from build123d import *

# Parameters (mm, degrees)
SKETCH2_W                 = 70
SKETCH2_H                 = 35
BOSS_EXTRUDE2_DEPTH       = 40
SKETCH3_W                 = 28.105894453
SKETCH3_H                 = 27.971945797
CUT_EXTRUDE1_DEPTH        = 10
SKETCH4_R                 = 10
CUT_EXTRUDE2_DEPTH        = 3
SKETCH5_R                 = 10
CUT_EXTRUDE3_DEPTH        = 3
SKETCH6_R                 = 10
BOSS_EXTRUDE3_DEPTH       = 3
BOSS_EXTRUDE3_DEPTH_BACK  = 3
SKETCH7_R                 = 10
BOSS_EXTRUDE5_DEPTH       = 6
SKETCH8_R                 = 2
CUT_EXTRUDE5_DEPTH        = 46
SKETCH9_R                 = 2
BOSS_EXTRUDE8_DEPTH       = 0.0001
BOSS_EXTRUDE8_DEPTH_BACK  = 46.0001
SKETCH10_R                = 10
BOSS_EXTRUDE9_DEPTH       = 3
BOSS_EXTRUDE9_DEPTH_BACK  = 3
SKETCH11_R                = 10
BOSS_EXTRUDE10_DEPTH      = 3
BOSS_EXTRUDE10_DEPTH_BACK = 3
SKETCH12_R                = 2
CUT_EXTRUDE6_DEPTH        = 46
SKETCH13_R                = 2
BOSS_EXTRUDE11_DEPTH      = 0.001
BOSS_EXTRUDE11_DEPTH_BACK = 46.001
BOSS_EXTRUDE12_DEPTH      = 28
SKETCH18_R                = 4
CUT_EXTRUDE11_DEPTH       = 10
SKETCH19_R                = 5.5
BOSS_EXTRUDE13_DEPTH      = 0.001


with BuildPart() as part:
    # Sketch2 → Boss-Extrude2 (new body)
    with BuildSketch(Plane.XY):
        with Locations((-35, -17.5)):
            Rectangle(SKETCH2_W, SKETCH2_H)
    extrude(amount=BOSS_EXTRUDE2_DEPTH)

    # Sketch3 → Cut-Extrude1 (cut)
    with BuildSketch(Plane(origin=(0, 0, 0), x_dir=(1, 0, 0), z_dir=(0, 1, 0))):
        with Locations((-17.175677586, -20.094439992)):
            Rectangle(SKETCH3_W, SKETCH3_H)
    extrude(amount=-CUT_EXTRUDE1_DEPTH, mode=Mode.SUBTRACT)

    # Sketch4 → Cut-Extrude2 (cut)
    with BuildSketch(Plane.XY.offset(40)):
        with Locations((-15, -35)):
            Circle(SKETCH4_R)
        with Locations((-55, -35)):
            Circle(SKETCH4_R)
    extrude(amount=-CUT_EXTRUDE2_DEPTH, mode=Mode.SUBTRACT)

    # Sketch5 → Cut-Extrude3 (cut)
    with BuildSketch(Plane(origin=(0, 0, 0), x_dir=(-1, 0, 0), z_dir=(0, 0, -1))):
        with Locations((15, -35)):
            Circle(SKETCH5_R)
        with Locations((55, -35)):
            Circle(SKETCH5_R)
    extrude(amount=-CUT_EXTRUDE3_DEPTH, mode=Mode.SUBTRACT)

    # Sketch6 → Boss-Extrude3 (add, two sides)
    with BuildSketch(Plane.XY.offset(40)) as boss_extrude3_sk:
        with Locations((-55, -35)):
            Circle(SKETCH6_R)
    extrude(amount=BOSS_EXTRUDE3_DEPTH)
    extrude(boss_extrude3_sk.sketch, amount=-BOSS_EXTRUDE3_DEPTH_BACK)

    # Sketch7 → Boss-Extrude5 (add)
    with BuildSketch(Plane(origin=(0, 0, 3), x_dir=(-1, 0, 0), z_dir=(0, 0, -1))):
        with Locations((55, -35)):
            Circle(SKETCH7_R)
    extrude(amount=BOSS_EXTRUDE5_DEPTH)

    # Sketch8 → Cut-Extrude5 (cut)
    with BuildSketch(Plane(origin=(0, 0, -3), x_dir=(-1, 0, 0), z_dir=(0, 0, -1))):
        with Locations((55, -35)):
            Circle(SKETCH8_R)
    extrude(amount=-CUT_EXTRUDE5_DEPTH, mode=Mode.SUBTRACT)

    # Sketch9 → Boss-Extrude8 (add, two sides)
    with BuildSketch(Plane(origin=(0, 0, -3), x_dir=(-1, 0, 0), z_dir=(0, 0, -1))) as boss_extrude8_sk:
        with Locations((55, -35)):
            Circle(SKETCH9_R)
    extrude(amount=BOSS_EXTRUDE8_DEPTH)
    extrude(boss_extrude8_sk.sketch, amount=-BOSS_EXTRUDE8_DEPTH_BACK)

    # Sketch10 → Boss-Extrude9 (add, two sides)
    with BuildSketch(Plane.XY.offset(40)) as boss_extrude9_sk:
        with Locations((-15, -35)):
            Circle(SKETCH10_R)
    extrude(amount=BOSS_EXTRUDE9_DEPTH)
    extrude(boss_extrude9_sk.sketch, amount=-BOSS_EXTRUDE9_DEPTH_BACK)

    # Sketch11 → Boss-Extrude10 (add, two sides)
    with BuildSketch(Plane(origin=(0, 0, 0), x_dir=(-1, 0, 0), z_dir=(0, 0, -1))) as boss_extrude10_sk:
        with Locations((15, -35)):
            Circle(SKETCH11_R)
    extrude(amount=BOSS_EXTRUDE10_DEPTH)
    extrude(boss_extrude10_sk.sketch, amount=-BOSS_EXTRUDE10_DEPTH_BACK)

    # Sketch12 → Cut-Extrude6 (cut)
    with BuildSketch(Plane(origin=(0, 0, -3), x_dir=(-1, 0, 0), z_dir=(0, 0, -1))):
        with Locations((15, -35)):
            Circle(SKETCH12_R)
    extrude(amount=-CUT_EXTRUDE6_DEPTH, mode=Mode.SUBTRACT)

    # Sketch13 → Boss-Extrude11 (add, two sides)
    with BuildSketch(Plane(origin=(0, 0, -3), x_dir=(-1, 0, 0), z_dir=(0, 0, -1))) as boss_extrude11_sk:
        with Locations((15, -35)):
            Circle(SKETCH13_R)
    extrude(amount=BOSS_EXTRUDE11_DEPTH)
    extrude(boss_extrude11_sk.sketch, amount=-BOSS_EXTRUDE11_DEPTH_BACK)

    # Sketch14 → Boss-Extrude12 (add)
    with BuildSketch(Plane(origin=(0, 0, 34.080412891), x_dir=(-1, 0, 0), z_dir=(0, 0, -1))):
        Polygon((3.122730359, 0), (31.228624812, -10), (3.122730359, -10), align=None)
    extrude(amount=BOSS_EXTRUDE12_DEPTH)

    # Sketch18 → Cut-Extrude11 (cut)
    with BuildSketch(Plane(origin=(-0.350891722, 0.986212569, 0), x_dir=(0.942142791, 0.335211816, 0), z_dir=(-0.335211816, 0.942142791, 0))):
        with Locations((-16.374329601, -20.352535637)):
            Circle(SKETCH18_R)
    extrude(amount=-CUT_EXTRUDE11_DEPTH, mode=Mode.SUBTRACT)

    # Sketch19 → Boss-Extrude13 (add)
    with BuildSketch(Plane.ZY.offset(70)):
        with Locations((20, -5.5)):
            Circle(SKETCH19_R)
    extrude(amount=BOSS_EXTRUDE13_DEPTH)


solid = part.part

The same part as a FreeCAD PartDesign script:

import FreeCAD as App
import Part
import Sketcher
from FreeCAD import Vector
Q = App.Units.Quantity

doc = App.newDocument("Part")
params = doc.addObject("Spreadsheet::Sheet", "Params")
for row, (alias, value) in enumerate([
    ("sketch1_width", "70 mm"),
    ("sketch1_height", "35 mm"),
    ("pad1_length", "40 mm"),
    ("pocket1_length", "10 mm"),
    ("sketch3_diameter", "20 mm"),
    ("pocket2_length", "3 mm"),
    ("sketch4_diameter", "20 mm"),
    ("pocket3_length", "3 mm"),
    ("sketch5_diameter", "20 mm"),
    ("pad2_length", "3 mm"),
    ("pad2_length2", "3 mm"),
    ("sketch6_diameter", "20 mm"),
    ("pad3_length", "6 mm"),
    ("sketch7_diameter", "4 mm"),
    ("pocket4_length", "46 mm"),
    ("sketch8_diameter", "4 mm"),
    ("pad4_length", "0.0001 mm"),
    ("pad4_length2", "46.0001 mm"),
    ("sketch9_diameter", "20 mm"),
    ("pad5_length", "3 mm"),
    ("pad5_length2", "3 mm"),
    ("sketch10_diameter", "20 mm"),
    ("pad6_length", "3 mm"),
    ("pad6_length2", "3 mm"),
    ("sketch11_diameter", "4 mm"),
    ("pocket5_length", "46 mm"),
    ("sketch12_diameter", "4 mm"),
    ("pad7_length", "0.001 mm"),
    ("pad7_length2", "46.001 mm"),
    ("sketch13_height", "10 mm"),
    ("pad8_length", "28 mm"),
    ("sketch14_diameter", "8 mm"),
    ("pocket6_length", "10 mm"),
    ("sketch15_diameter", "11 mm"),
    ("pad9_length", "0.001 mm"),
], start=1):
    params.set(f"A{row}", alias)
    params.set(f"B{row}", "=" + value)
    params.setAlias(f"B{row}", alias)

body = doc.addObject("PartDesign::Body", "Body")

sketch1 = body.newObject("Sketcher::SketchObject", "Sketch")
sketch1.AttachmentSupport = (doc.getObject("XY_Plane"), [""])
sketch1.MapMode = "FlatFace"
sketch1.addGeometry([
    Part.LineSegment(Vector(-70, 0, 0), Vector(-70, -35, 0)),
    Part.LineSegment(Vector(-70, -35, 0), Vector(0, -35, 0)),
    Part.LineSegment(Vector(0, -35, 0), Vector(0, 0, 0)),
    Part.LineSegment(Vector(0, 0, 0), Vector(-70, 0, 0)),
], False)
sketch1.addConstraint([
    Sketcher.Constraint("Coincident", 0, 2, 1, 1),
    Sketcher.Constraint("Coincident", 1, 2, 2, 1),
    Sketcher.Constraint("Coincident", 2, 2, 3, 1),
    Sketcher.Constraint("Coincident", 3, 2, 0, 1),
    Sketcher.Constraint("Vertical", 0),
    Sketcher.Constraint("Horizontal", 1),
    Sketcher.Constraint("Vertical", 2),
    Sketcher.Constraint("Horizontal", 3),
    Sketcher.Constraint("Coincident", 2, 2, -1, 1),
    Sketcher.Constraint("DistanceX", 1, 1, 1, 2, Q("70 mm")),
    Sketcher.Constraint("DistanceY", 0, 2, 0, 1, Q("35 mm")),
])
sketch1.setExpression("Constraints[9]", "Params.sketch1_width")
sketch1.setExpression("Constraints[10]", "Params.sketch1_height")
pad1 = body.newObject("PartDesign::Pad", "Pad")
pad1.Profile = sketch1
pad1.setExpression("Length", "Params.pad1_length")

sketch2 = body.newObject("Sketcher::SketchObject", "Sketch001")
sketch2.AttachmentSupport = (doc.getObject("XZ_Plane"), [""])
sketch2.MapMode = "FlatFace"
sketch2.addGeometry([
    Part.LineSegment(Vector(-31, 6, 0), Vector(-31, 34, 0)),
    Part.LineSegment(Vector(-31, 34, 0), Vector(-3, 34, 0)),
    Part.LineSegment(Vector(-3, 34, 0), Vector(-3, 6, 0)),
    Part.LineSegment(Vector(-3, 6, 0), Vector(-31, 6, 0)),
], False)
sketch2.addConstraint([
    Sketcher.Constraint("Coincident", 0, 2, 1, 1),
    Sketcher.Constraint("Coincident", 1, 2, 2, 1),
    Sketcher.Constraint("Coincident", 2, 2, 3, 1),
    Sketcher.Constraint("Coincident", 3, 2, 0, 1),
    Sketcher.Constraint("Vertical", 0),
    Sketcher.Constraint("Horizontal", 1),
    Sketcher.Constraint("Vertical", 2),
    Sketcher.Constraint("Horizontal", 3),
    Sketcher.Constraint("DistanceX", 1, 1, 1, 2, Q("28.105894 mm")),
    Sketcher.Constraint("DistanceY", 0, 1, 0, 2, Q("27.971946 mm")),
    Sketcher.Constraint("DistanceX", 1, 2, -1, 1, Q("3.12273 mm")),
    Sketcher.Constraint("DistanceY", -1, 1, 0, 2, Q("34.080413 mm")),
])
pocket1 = body.newObject("PartDesign::Pocket", "Pocket")
pocket1.Profile = sketch2
pocket1.setExpression("Length", "Params.pocket1_length")
pocket1.Reversed = True

sketch3 = body.newObject("Sketcher::SketchObject", "Sketch002")
sketch3.AttachmentSupport = (doc.getObject("XY_Plane"), [""])
sketch3.MapMode = "FlatFace"
sketch3.AttachmentOffset = App.Placement(Vector(0, 0, 40), App.Rotation())
sketch3.addGeometry([
    Part.Circle(Vector(-15, -35, 0), Vector(0, 0, 1), 10),
    Part.Circle(Vector(-55, -35, 0), Vector(0, 0, 1), 10),
], False)
sketch3.addConstraint([
    Sketcher.Constraint("Equal", 0, 1),
    Sketcher.Constraint("Horizontal", 0, 3, 1, 3),
    Sketcher.Constraint("Diameter", 0, Q("20 mm")),
    Sketcher.Constraint("DistanceX", 0, 3, -1, 1, Q("15 mm")),
    Sketcher.Constraint("DistanceY", 0, 3, -1, 1, Q("35 mm")),
    Sketcher.Constraint("DistanceX", 1, 3, -1, 1, Q("55 mm")),
])
sketch3.setExpression("Constraints[2]", "Params.sketch3_diameter")
pocket2 = body.newObject("PartDesign::Pocket", "Pocket001")
pocket2.Profile = sketch3
pocket2.setExpression("Length", "Params.pocket2_length")

sketch4 = body.newObject("Sketcher::SketchObject", "Sketch003")
sketch4.AttachmentSupport = (doc.getObject("XY_Plane"), [""])
sketch4.MapMode = "FlatFace"
sketch4.addGeometry([
    Part.Circle(Vector(-15, -35, 0), Vector(0, 0, 1), 10),
    Part.Circle(Vector(-55, -35, 0), Vector(0, 0, 1), 10),
], False)
sketch4.addConstraint([
    Sketcher.Constraint("Equal", 0, 1),
    Sketcher.Constraint("Horizontal", 0, 3, 1, 3),
    Sketcher.Constraint("Diameter", 0, Q("20 mm")),
    Sketcher.Constraint("DistanceX", 0, 3, -1, 1, Q("15 mm")),
    Sketcher.Constraint("DistanceY", 0, 3, -1, 1, Q("35 mm")),
    Sketcher.Constraint("DistanceX", 1, 3, -1, 1, Q("55 mm")),
])
sketch4.setExpression("Constraints[2]", "Params.sketch4_diameter")
pocket3 = body.newObject("PartDesign::Pocket", "Pocket002")
pocket3.Profile = sketch4
pocket3.setExpression("Length", "Params.pocket3_length")
pocket3.Reversed = True

sketch5 = body.newObject("Sketcher::SketchObject", "Sketch004")
sketch5.AttachmentSupport = (doc.getObject("XY_Plane"), [""])
sketch5.MapMode = "FlatFace"
sketch5.AttachmentOffset = App.Placement(Vector(0, 0, 40), App.Rotation())
sketch5.addGeometry(Part.Circle(Vector(-55, -35, 0), Vector(0, 0, 1), 10), False)
sketch5.addConstraint([
    Sketcher.Constraint("Diameter", 0, Q("20 mm")),
    Sketcher.Constraint("DistanceX", 0, 3, -1, 1, Q("55 mm")),
    Sketcher.Constraint("DistanceY", 0, 3, -1, 1, Q("35 mm")),
])
sketch5.setExpression("Constraints[0]", "Params.sketch5_diameter")
pad2 = body.newObject("PartDesign::Pad", "Pad001")
pad2.Profile = sketch5
pad2.Type = "TwoLengths"
pad2.setExpression("Length", "Params.pad2_length")
pad2.setExpression("Length2", "Params.pad2_length2")

sketch6 = body.newObject("Sketcher::SketchObject", "Sketch005")
sketch6.AttachmentSupport = (doc.getObject("XY_Plane"), [""])
sketch6.MapMode = "FlatFace"
sketch6.AttachmentOffset = App.Placement(Vector(0, 0, 3), App.Rotation())
sketch6.addGeometry(Part.Circle(Vector(-55, -35, 0), Vector(0, 0, 1), 10), False)
sketch6.addConstraint([
    Sketcher.Constraint("Diameter", 0, Q("20 mm")),
    Sketcher.Constraint("DistanceX", 0, 3, -1, 1, Q("55 mm")),
    Sketcher.Constraint("DistanceY", 0, 3, -1, 1, Q("35 mm")),
])
sketch6.setExpression("Constraints[0]", "Params.sketch6_diameter")
pad3 = body.newObject("PartDesign::Pad", "Pad002")
pad3.Profile = sketch6
pad3.setExpression("Length", "Params.pad3_length")
pad3.Reversed = True

sketch7 = body.newObject("Sketcher::SketchObject", "Sketch006")
sketch7.AttachmentSupport = (doc.getObject("XY_Plane"), [""])
sketch7.MapMode = "FlatFace"
sketch7.AttachmentOffset = App.Placement(Vector(0, 0, -3), App.Rotation())
sketch7.addGeometry(Part.Circle(Vector(-55, -35, 0), Vector(0, 0, 1), 2), False)
sketch7.addConstraint([
    Sketcher.Constraint("Diameter", 0, Q("4 mm")),
    Sketcher.Constraint("DistanceX", 0, 3, -1, 1, Q("55 mm")),
    Sketcher.Constraint("DistanceY", 0, 3, -1, 1, Q("35 mm")),
])
sketch7.setExpression("Constraints[0]", "Params.sketch7_diameter")
pocket4 = body.newObject("PartDesign::Pocket", "Pocket003")
pocket4.Profile = sketch7
pocket4.setExpression("Length", "Params.pocket4_length")
pocket4.Reversed = True

sketch8 = body.newObject("Sketcher::SketchObject", "Sketch007")
sketch8.AttachmentSupport = (doc.getObject("XY_Plane"), [""])
sketch8.MapMode = "FlatFace"
sketch8.AttachmentOffset = App.Placement(Vector(0, 0, -3), App.Rotation())
sketch8.addGeometry(Part.Circle(Vector(-55, -35, 0), Vector(0, 0, 1), 2), False)
sketch8.addConstraint([
    Sketcher.Constraint("Diameter", 0, Q("4 mm")),
    Sketcher.Constraint("DistanceX", 0, 3, -1, 1, Q("55 mm")),
    Sketcher.Constraint("DistanceY", 0, 3, -1, 1, Q("35 mm")),
])
sketch8.setExpression("Constraints[0]", "Params.sketch8_diameter")
pad4 = body.newObject("PartDesign::Pad", "Pad003")
pad4.Profile = sketch8
pad4.Type = "TwoLengths"
pad4.setExpression("Length", "Params.pad4_length")
pad4.setExpression("Length2", "Params.pad4_length2")
pad4.Reversed = True

sketch9 = body.newObject("Sketcher::SketchObject", "Sketch008")
sketch9.AttachmentSupport = (doc.getObject("XY_Plane"), [""])
sketch9.MapMode = "FlatFace"
sketch9.AttachmentOffset = App.Placement(Vector(0, 0, 40), App.Rotation())
sketch9.addGeometry(Part.Circle(Vector(-15, -35, 0), Vector(0, 0, 1), 10), False)
sketch9.addConstraint([
    Sketcher.Constraint("Diameter", 0, Q("20 mm")),
    Sketcher.Constraint("DistanceX", 0, 3, -1, 1, Q("15 mm")),
    Sketcher.Constraint("DistanceY", 0, 3, -1, 1, Q("35 mm")),
])
sketch9.setExpression("Constraints[0]", "Params.sketch9_diameter")
pad5 = body.newObject("PartDesign::Pad", "Pad004")
pad5.Profile = sketch9
pad5.Type = "TwoLengths"
pad5.setExpression("Length", "Params.pad5_length")
pad5.setExpression("Length2", "Params.pad5_length2")

sketch10 = body.newObject("Sketcher::SketchObject", "Sketch009")
sketch10.AttachmentSupport = (doc.getObject("XY_Plane"), [""])
sketch10.MapMode = "FlatFace"
sketch10.addGeometry(Part.Circle(Vector(-15, -35, 0), Vector(0, 0, 1), 10), False)
sketch10.addConstraint([
    Sketcher.Constraint("Diameter", 0, Q("20 mm")),
    Sketcher.Constraint("DistanceX", 0, 3, -1, 1, Q("15 mm")),
    Sketcher.Constraint("DistanceY", 0, 3, -1, 1, Q("35 mm")),
])
sketch10.setExpression("Constraints[0]", "Params.sketch10_diameter")
pad6 = body.newObject("PartDesign::Pad", "Pad005")
pad6.Profile = sketch10
pad6.Type = "TwoLengths"
pad6.setExpression("Length", "Params.pad6_length")
pad6.setExpression("Length2", "Params.pad6_length2")
pad6.Reversed = True

sketch11 = body.newObject("Sketcher::SketchObject", "Sketch010")
sketch11.AttachmentSupport = (doc.getObject("XY_Plane"), [""])
sketch11.MapMode = "FlatFace"
sketch11.AttachmentOffset = App.Placement(Vector(0, 0, -3), App.Rotation())
sketch11.addGeometry(Part.Circle(Vector(-15, -35, 0), Vector(0, 0, 1), 2), False)
sketch11.addConstraint([
    Sketcher.Constraint("Diameter", 0, Q("4 mm")),
    Sketcher.Constraint("DistanceX", 0, 3, -1, 1, Q("15 mm")),
    Sketcher.Constraint("DistanceY", 0, 3, -1, 1, Q("35 mm")),
])
sketch11.setExpression("Constraints[0]", "Params.sketch11_diameter")
pocket5 = body.newObject("PartDesign::Pocket", "Pocket004")
pocket5.Profile = sketch11
pocket5.setExpression("Length", "Params.pocket5_length")
pocket5.Reversed = True

sketch12 = body.newObject("Sketcher::SketchObject", "Sketch011")
sketch12.AttachmentSupport = (doc.getObject("XY_Plane"), [""])
sketch12.MapMode = "FlatFace"
sketch12.AttachmentOffset = App.Placement(Vector(0, 0, -3), App.Rotation())
sketch12.addGeometry(Part.Circle(Vector(-15, -35, 0), Vector(0, 0, 1), 2), False)
sketch12.addConstraint([
    Sketcher.Constraint("Diameter", 0, Q("4 mm")),
    Sketcher.Constraint("DistanceX", 0, 3, -1, 1, Q("15 mm")),
    Sketcher.Constraint("DistanceY", 0, 3, -1, 1, Q("35 mm")),
])
sketch12.setExpression("Constraints[0]", "Params.sketch12_diameter")
pad7 = body.newObject("PartDesign::Pad", "Pad006")
pad7.Profile = sketch12
pad7.Type = "TwoLengths"
pad7.setExpression("Length", "Params.pad7_length")
pad7.setExpression("Length2", "Params.pad7_length2")
pad7.Reversed = True

sketch13 = body.newObject("Sketcher::SketchObject", "Sketch012")
sketch13.AttachmentSupport = (doc.getObject("XY_Plane"), [""])
sketch13.MapMode = "FlatFace"
sketch13.AttachmentOffset = App.Placement(Vector(0, 0, 34.080413), App.Rotation())
sketch13.addGeometry([
    Part.LineSegment(Vector(-31, -10, 0), Vector(-3, 0, 0)),
    Part.LineSegment(Vector(-3, 0, 0), Vector(-3, -10, 0)),
    Part.LineSegment(Vector(-3, -10, 0), Vector(-31, -10, 0)),
], False)
sketch13.addConstraint([
    Sketcher.Constraint("Coincident", 0, 2, 1, 1),
    Sketcher.Constraint("Coincident", 1, 2, 2, 1),
    Sketcher.Constraint("Coincident", 2, 2, 0, 1),
    Sketcher.Constraint("Vertical", 1),
    Sketcher.Constraint("Horizontal", 2),
    Sketcher.Constraint("PointOnObject", 0, 2, -1),
    Sketcher.Constraint("DistanceY", 1, 2, 1, 1, Q("10 mm")),
    Sketcher.Constraint("DistanceX", 2, 2, 2, 1, Q("28.105894 mm")),
    Sketcher.Constraint("DistanceX", 0, 2, -1, 1, Q("3.12273 mm")),
])
sketch13.setExpression("Constraints[6]", "Params.sketch13_height")
pad8 = body.newObject("PartDesign::Pad", "Pad007")
pad8.Profile = sketch13
pad8.setExpression("Length", "Params.pad8_length")
pad8.Reversed = True

sketch14 = body.newObject("Sketcher::SketchObject", "Sketch013")
sketch14.Placement = App.Placement(Vector(-0.350892, 0.986213, 0), App.Rotation(Vector(0.942142791, 0.335211816, 0), Vector(0, 0, -1), Vector(-0.335211816, 0.942142791, 0), "ZXY"))
sketch14.addGeometry(Part.Circle(Vector(-16.4, -20.4, 0), Vector(0, 0, 1), 4), False)
sketch14.addConstraint([
    Sketcher.Constraint("Diameter", 0, Q("8 mm")),
    Sketcher.Constraint("DistanceX", 0, 3, -1, 1, Q("16.37433 mm")),
    Sketcher.Constraint("DistanceY", 0, 3, -1, 1, Q("20.352536 mm")),
])
sketch14.setExpression("Constraints[0]", "Params.sketch14_diameter")
pocket6 = body.newObject("PartDesign::Pocket", "Pocket005")
pocket6.Profile = sketch14
pocket6.setExpression("Length", "Params.pocket6_length")

sketch15 = body.newObject("Sketcher::SketchObject", "Sketch014")
sketch15.AttachmentSupport = (doc.getObject("YZ_Plane"), [""])
sketch15.MapMode = "FlatFace"
sketch15.AttachmentOffset = App.Placement(Vector(0, 0, -70), App.Rotation())
sketch15.addGeometry(Part.Circle(Vector(-6, 20, 0), Vector(0, 0, 1), 6), False)
sketch15.addConstraint([
    Sketcher.Constraint("Diameter", 0, Q("11 mm")),
    Sketcher.Constraint("DistanceY", -1, 1, 0, 3, Q("20 mm")),
    Sketcher.Constraint("DistanceX", 0, 3, -1, 1, Q("5.5 mm")),
])
sketch15.setExpression("Constraints[0]", "Params.sketch15_diameter")
pad9 = body.newObject("PartDesign::Pad", "Pad008")
pad9.Profile = sketch15
pad9.setExpression("Length", "Params.pad9_length")
pad9.Reversed = True

doc.recompute()
